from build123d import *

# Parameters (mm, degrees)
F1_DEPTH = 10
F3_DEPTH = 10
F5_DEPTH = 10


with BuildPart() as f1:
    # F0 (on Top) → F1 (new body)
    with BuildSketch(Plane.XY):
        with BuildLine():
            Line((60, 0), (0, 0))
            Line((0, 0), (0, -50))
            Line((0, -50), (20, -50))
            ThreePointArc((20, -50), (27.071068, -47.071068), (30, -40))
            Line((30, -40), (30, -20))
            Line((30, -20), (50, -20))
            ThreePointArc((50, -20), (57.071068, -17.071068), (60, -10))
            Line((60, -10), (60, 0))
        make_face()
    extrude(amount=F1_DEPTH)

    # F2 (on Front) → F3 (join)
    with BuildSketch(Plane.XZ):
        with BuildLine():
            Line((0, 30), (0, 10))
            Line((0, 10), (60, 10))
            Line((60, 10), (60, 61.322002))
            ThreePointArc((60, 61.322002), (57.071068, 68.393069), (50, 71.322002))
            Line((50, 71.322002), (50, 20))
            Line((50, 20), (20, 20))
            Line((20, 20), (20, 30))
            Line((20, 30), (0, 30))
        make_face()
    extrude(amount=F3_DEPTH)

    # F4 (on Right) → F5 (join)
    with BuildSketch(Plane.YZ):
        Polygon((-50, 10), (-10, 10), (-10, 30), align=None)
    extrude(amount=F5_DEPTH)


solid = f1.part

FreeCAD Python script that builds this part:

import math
import FreeCAD as App
import Part
import Sketcher

V = App.Vector


def add_polygon(sketch, points):
    """Adds a closed chain of lines whose ends are joined by coincident constraints."""
    first, n = sketch.GeometryCount, len(points)
    for a, b in zip(points, points[1:] + points[:1]):
        sketch.addGeometry(Part.LineSegment(App.Vector(*a, 0), App.Vector(*b, 0)), False)
    for i in range(n):
        sketch.addConstraint(Sketcher.Constraint("Coincident", first + i, 2, first + (i + 1) % n, 1))

doc = App.newDocument("Part")
body = doc.addObject("PartDesign::Body", "Body")

# Sketch on XY plane
sketch1 = body.newObject("Sketcher::SketchObject", "Sketch")
sketch1.AttachmentSupport = (doc.getObject("XY_Plane"), [""])
sketch1.MapMode = "FlatFace"
sketch1.addGeometry([
    Part.LineSegment(V(60, 0, 0), V(0, 0, 0)),  # 0
    Part.LineSegment(V(0, 0, 0), V(0, -50, 0)),  # 1
    Part.LineSegment(V(0, -50, 0), V(20, -50, 0)),  # 2
    Part.ArcOfCircle(Part.Circle(V(20, -40, 0), V(0, 0, 1), 10), math.radians(-90), math.radians(0)),  # 3
    Part.LineSegment(V(30, -40, 0), V(30, -20, 0)),  # 4
    Part.LineSegment(V(30, -20, 0), V(50, -20, 0)),  # 5
    Part.ArcOfCircle(Part.Circle(V(50, -10, 0), V(0, 0, 1), 10), math.radians(-90), math.radians(0)),  # 6
    Part.LineSegment(V(60, -10, 0), V(60, 0, 0)),  # 7
], False)
sketch1.addConstraint([
    Sketcher.Constraint("Coincident", 0, 2, 1, 1),
    Sketcher.Constraint("Coincident", 1, 2, 2, 1),
    Sketcher.Constraint("Tangent", 2, 2, 3, 1),
    Sketcher.Constraint("Tangent", 3, 2, 4, 1),
    Sketcher.Constraint("Coincident", 4, 2, 5, 1),
    Sketcher.Constraint("Tangent", 5, 2, 6, 1),
    Sketcher.Constraint("Tangent", 6, 2, 7, 1),
    Sketcher.Constraint("Coincident", 7, 2, 0, 1),
    Sketcher.Constraint("Horizontal", 0),
    Sketcher.Constraint("Vertical", 1),
    Sketcher.Constraint("Horizontal", 2),
    Sketcher.Constraint("Vertical", 4),
    Sketcher.Constraint("Horizontal", 5),
    Sketcher.Constraint("Vertical", 7),
    Sketcher.Constraint("Coincident", 0, 2, -1, 1),
    Sketcher.Constraint("Equal", 3, 6),
    Sketcher.Constraint("Equal", 2, 5),
    Sketcher.Constraint("Equal", 5, 4),
    Sketcher.Constraint("Radius", 3, 9.999999),
    Sketcher.Constraint("DistanceX", 0, 2, 0, 1, 60.0),
    Sketcher.Constraint("DistanceY", 1, 2, 1, 1, 50.0),
])
pad1 = body.newObject("PartDesign::Pad", "Pad")
pad1.Profile = sketch1
pad1.Length = 10

# Sketch on XZ plane
sketch2 = body.newObject("Sketcher::SketchObject", "Sketch001")
sketch2.AttachmentSupport = (doc.getObject("XZ_Plane"), [""])
sketch2.MapMode = "FlatFace"
sketch2.addGeometry([
    Part.LineSegment(V(0, 30, 0), V(0, 10, 0)),  # 0
    Part.LineSegment(V(0, 10, 0), V(60, 10, 0)),  # 1
    Part.LineSegment(V(60, 10, 0), V(60, 61, 0)),  # 2
    Part.ArcOfCircle(Part.Circle(V(50, 61, 0), V(0, 0, 1), 10), math.radians(0), math.radians(90)),  # 3
    Part.LineSegment(V(50, 71, 0), V(50, 20, 0)),  # 4
    Part.LineSegment(V(50, 20, 0), V(20, 20, 0)),  # 5
    Part.LineSegment(V(20, 20, 0), V(20, 30, 0)),  # 6
    Part.LineSegment(V(20, 30, 0), V(0, 30, 0)),  # 7
], False)
sketch2.addConstraint([
    Sketcher.Constraint("Coincident", 0, 2, 1, 1),
    Sketcher.Constraint("Coincident", 1, 2, 2, 1),
    Sketcher.Constraint("Tangent", 2, 2, 3, 1),
    Sketcher.Constraint("Coincident", 3, 2, 4, 1),
    Sketcher.Constraint("Coincident", 4, 2, 5, 1),
    Sketcher.Constraint("Coincident", 5, 2, 6, 1),
    Sketcher.Constraint("Coincident", 6, 2, 7, 1),
    Sketcher.Constraint("Coincident", 7, 2, 0, 1),
    Sketcher.Constraint("Vertical", 0),
    Sketcher.Constraint("Horizontal", 1),
    Sketcher.Constraint("Vertical", 2),
    Sketcher.Constraint("Vertical", 4),
    Sketcher.Constraint("Horizontal", 5),
    Sketcher.Constraint("Vertical", 6),
    Sketcher.Constraint("Horizontal", 7),
    Sketcher.Constraint("PointOnObject", 0, 2, -2),
    Sketcher.Constraint("Equal", 7, 0),
    Sketcher.Constraint("Equal", 2, 4),
    Sketcher.Constraint("Radius", 3, 10.000001),
    Sketcher.Constraint("DistanceX", 1, 1, 1, 2, 60.0),
    Sketcher.Constraint("DistanceX", 5, 2, 5, 1, 30.0),
    Sketcher.Constraint("DistanceX", 7, 2, 7, 1, 20.0),
    Sketcher.Constraint("DistanceY", -1, 1, 0, 2, 10.0),
    Sketcher.Constraint("DistanceY", 2, 1, 2, 2, 51.322002),
])
pad2 = body.newObject("PartDesign::Pad", "Pad001")
pad2.Profile = sketch2
pad2.Length = 10

# Sketch on YZ plane
sketch3 = body.newObject("Sketcher::SketchObject", "Sketch002")
sketch3.AttachmentSupport = (doc.getObject("YZ_Plane"), [""])
sketch3.MapMode = "FlatFace"
add_polygon(sketch3, [(-50, 10), (-10, 10), (-10, 30)])  # lines 0-2
sketch3.addConstraint([
    Sketcher.Constraint("Horizontal", 0),
    Sketcher.Constraint("Vertical", 1),
    Sketcher.Constraint("DistanceX", 0, 1, 0, 2, 40.0),
    Sketcher.Constraint("DistanceY", 1, 1, 1, 2, 20.0),
    Sketcher.Constraint("DistanceX", 0, 2, -1, 1, 10.0),
    Sketcher.Constraint("DistanceY", -1, 1, 0, 2, 10.0),
])
pad3 = body.newObject("PartDesign::Pad", "Pad002")
pad3.Profile = sketch3
pad3.Length = 10

doc.recompute()
